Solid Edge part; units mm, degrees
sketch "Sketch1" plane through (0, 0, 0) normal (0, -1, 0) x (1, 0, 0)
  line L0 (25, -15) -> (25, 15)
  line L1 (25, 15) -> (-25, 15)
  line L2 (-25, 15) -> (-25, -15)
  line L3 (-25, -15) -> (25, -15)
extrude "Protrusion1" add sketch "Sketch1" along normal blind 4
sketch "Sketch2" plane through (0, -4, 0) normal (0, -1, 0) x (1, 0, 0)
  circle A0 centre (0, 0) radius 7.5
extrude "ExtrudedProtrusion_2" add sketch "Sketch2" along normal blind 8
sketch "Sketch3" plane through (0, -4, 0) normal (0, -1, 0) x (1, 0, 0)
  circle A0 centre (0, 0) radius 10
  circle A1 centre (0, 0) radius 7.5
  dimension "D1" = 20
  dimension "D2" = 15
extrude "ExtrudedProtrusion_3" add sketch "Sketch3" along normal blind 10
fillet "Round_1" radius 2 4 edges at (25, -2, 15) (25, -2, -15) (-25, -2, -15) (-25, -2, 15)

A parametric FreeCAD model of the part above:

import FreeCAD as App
import Part
import Sketcher

V = App.Vector


def edges_at(feature, points):
    """Names of the edges that pass closest to the given points."""
    edges = feature.Shape.Edges
    near = lambda p: min(range(len(edges)), key=lambda i: edges[i].distToShape(Part.Vertex(*p))[0])
    return sorted({f"Edge{near(p) + 1}" for p in points})

doc = App.newDocument("Part")
body = doc.addObject("PartDesign::Body", "Body")

# Sketch on XZ plane
sketch1 = body.newObject("Sketcher::SketchObject", "Sketch")
sketch1.AttachmentSupport = (doc.getObject("XZ_Plane"), [""])
sketch1.MapMode = "FlatFace"
sketch1.addGeometry([
    Part.LineSegment(V(-25, -15, 0), V(25, -15, 0)),
    Part.LineSegment(V(25, -15, 0), V(25, 15, 0)),
    Part.LineSegment(V(25, 15, 0), V(-25, 15, 0)),
    Part.LineSegment(V(-25, 15, 0), V(-25, -15, 0)),
], False)
sketch1.addConstraint([
    Sketcher.Constraint("Coincident", 0, 2, 1, 1),
    Sketcher.Constraint("Coincident", 1, 2, 2, 1),
    Sketcher.Constraint("Coincident", 2, 2, 3, 1),
    Sketcher.Constraint("Coincident", 3, 2, 0, 1),
    Sketcher.Constraint("Horizontal", 0),
    Sketcher.Constraint("Vertical", 1),
    Sketcher.Constraint("Horizontal", 2),
    Sketcher.Constraint("Vertical", 3),
    Sketcher.Constraint("Symmetric", 0, 2, 2, 2, -1, 1),
    Sketcher.Constraint("DistanceX", 0, 1, 0, 2, 50.0),
    Sketcher.Constraint("DistanceY", 1, 1, 1, 2, 30.0),
])
pad1 = body.newObject("PartDesign::Pad", "Pad")
pad1.Profile = sketch1
pad1.Length = 4

# Sketch on XZ plane
sketch2 = body.newObject("Sketcher::SketchObject", "Sketch001")
sketch2.AttachmentSupport = (doc.getObject("XZ_Plane"), [""])
sketch2.MapMode = "FlatFace"
sketch2.AttachmentOffset = App.Placement(V(0, 0, 4), App.Rotation())
sketch2.addGeometry(Part.Circle(V(0, 0, 0), V(0, 0, 1), 8), False)
sketch2.addConstraint([
    Sketcher.Constraint("Coincident", 0, 3, -1, 1),
    Sketcher.Constraint("Diameter", 0, 15.0),
])
pad2 = body.newObject("PartDesign::Pad", "Pad001")
pad2.Profile = sketch2
pad2.Length = 8

# Sketch on XZ plane
sketch3 = body.newObject("Sketcher::SketchObject", "Sketch002")
sketch3.AttachmentSupport = (doc.getObject("XZ_Plane"), [""])
sketch3.MapMode = "FlatFace"
sketch3.AttachmentOffset = App.Placement(V(0, 0, 4), App.Rotation())
sketch3.addGeometry([
    Part.Circle(V(0, 0, 0), V(0, 0, 1), 10),
    Part.Circle(V(0, 0, 0), V(0, 0, 1), 8),
], False)
sketch3.addConstraint([
    Sketcher.Constraint("Coincident", 0, 3, -1, 1),
    Sketcher.Constraint("Coincident", 1, 3, -1, 1),
    Sketcher.Constraint("Diameter", 0, 20.0),
    Sketcher.Constraint("Diameter", 1, 15.0),
])
pad3 = body.newObject("PartDesign::Pad", "Pad002")
pad3.Profile = sketch3
pad3.Length = 10
doc.recompute()

fillet = body.newObject("PartDesign::Fillet", "Fillet")
fillet.Base = (pad3, edges_at(pad3, [
    (25, -2, 15),
    (25, -2, -15),
    (-25, -2, -15),
    (-25, -2, 15),
]))
fillet.Radius = 2

doc.recompute()
